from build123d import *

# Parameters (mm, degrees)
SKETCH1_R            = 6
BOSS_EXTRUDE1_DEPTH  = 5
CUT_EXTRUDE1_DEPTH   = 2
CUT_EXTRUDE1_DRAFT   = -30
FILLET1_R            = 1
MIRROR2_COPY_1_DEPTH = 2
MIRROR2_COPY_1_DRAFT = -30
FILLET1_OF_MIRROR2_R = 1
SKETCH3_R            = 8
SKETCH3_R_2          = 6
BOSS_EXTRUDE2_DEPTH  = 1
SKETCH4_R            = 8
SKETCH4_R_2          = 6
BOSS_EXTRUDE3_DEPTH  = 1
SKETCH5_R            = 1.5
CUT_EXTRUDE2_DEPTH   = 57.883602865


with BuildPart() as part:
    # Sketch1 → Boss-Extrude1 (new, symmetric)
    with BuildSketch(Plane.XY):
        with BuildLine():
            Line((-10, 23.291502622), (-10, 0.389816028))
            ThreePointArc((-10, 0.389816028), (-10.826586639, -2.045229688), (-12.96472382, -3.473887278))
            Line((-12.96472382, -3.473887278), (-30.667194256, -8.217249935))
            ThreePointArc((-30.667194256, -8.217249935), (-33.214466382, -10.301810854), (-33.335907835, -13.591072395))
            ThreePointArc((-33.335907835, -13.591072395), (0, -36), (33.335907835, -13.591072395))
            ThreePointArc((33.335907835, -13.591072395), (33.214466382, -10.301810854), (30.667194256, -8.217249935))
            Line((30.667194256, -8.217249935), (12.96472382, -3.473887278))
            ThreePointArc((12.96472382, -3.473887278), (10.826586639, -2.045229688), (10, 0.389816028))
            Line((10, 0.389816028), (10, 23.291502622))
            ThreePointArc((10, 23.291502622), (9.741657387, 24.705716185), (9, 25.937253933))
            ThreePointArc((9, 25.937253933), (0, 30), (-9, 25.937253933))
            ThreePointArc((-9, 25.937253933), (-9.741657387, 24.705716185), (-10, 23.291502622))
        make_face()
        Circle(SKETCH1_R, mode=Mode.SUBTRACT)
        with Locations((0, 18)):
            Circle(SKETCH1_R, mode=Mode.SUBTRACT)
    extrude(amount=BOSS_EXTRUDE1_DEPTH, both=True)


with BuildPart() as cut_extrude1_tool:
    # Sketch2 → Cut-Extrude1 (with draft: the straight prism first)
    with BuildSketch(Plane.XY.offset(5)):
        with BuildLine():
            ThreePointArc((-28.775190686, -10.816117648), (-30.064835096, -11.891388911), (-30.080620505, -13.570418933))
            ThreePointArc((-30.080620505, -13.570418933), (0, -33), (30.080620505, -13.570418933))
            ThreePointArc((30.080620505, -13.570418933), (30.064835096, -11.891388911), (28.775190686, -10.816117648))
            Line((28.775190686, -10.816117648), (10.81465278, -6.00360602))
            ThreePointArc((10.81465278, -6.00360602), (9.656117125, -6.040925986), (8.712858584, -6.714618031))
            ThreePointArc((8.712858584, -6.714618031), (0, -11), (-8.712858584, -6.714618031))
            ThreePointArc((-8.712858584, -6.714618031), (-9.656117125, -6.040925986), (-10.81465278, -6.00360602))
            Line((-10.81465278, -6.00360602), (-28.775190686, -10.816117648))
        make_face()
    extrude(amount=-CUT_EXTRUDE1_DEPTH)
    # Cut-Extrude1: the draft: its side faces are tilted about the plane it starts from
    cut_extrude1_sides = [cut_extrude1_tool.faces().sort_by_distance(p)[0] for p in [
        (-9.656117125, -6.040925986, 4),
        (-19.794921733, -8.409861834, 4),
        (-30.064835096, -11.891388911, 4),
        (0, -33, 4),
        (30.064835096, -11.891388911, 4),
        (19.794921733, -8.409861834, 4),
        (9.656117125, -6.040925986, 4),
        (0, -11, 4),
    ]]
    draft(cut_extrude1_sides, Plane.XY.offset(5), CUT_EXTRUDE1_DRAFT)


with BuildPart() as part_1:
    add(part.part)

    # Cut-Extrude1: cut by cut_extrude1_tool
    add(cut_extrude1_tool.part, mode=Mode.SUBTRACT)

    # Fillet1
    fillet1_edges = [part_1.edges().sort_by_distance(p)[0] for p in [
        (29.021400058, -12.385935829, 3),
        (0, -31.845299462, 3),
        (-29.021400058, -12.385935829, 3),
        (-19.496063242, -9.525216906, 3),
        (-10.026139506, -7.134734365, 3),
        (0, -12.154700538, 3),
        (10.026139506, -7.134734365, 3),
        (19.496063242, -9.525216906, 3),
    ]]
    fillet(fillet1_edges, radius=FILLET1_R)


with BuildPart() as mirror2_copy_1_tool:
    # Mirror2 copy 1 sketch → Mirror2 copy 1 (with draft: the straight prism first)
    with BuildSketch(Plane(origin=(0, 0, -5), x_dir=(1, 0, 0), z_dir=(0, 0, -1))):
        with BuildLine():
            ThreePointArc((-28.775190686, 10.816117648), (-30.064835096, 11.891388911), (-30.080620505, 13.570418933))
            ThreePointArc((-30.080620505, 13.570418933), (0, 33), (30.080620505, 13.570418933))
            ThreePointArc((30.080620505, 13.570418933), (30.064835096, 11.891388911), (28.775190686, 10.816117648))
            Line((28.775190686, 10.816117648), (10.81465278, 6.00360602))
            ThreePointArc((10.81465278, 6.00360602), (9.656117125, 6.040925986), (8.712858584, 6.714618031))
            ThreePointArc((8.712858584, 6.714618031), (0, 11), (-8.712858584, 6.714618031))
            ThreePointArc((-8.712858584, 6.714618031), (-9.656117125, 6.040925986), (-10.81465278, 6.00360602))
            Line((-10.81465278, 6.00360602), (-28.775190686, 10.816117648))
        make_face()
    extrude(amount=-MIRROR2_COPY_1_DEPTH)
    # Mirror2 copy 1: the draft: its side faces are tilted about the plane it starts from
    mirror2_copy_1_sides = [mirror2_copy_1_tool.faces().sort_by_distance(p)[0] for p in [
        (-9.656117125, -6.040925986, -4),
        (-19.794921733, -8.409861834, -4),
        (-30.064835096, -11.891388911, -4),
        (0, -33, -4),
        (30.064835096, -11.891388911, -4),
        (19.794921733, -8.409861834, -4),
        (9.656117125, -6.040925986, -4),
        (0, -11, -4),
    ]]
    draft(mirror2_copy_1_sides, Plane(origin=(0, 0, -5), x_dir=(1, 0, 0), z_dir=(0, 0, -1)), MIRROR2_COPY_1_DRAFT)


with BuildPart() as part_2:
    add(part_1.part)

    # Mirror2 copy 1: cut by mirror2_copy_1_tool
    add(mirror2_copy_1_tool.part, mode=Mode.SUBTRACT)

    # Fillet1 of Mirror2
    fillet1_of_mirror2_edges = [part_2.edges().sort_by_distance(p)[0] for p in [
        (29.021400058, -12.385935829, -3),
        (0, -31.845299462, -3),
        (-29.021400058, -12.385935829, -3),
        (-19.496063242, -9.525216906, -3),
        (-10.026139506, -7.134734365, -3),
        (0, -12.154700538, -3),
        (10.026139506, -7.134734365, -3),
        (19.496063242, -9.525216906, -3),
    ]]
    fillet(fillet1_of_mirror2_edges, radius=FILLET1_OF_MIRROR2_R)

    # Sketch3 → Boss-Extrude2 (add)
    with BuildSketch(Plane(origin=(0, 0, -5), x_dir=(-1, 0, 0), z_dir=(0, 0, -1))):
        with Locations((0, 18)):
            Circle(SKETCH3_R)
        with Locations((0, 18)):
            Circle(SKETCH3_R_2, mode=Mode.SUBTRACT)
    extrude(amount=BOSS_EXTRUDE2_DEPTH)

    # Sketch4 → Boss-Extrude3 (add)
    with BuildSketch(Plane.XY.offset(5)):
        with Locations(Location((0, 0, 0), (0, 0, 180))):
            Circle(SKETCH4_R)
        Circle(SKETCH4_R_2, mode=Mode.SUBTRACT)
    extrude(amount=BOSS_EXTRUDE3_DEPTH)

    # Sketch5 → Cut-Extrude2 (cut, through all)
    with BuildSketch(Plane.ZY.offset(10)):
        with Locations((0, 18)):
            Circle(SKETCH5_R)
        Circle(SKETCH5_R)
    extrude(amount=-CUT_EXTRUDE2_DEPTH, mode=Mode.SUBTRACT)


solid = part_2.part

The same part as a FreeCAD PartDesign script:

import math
import FreeCAD as App
import Part
import Sketcher
Q = App.Units.Quantity


def edges_at(feature, points):
    """Names of the edges that pass closest to the given points."""
    edges = feature.Shape.Edges
    near = lambda p: min(range(len(edges)), key=lambda i: edges[i].distToShape(Part.Vertex(*p))[0])
    return sorted({f"Edge{near(p) + 1}" for p in points})


def faces_at(feature, points):
    """Names of the faces that lie closest to the given points."""
    faces = feature.Shape.Faces
    near = lambda p: min(range(len(faces)), key=lambda i: faces[i].distToShape(Part.Vertex(*p))[0])
    return sorted({f"Face{near(p) + 1}" for p in points})

doc = App.newDocument("Part")
body = doc.addObject("PartDesign::Body", "Body")

# Sketch on XY plane
sketch1 = doc.addObject("Sketcher::SketchObject", "Sketch")
body.addObject(sketch1)
sketch1.AttachmentSupport = (doc.XY_Plane, [""])
sketch1.MapMode = "FlatFace"
sketch1.addGeometry([
    Part.LineSegment(App.Vector(-10, 23.3, 0), App.Vector(-10, 0.4, 0)),  # 0
    Part.ArcOfCircle(Part.Circle(App.Vector(-14, 0.4, 0), App.Vector(0, 0, 1), 4), math.radians(-75), math.radians(0)),  # 1
    Part.LineSegment(App.Vector(-13, -3.5, 0), App.Vector(-30.7, -8.2, 0)),  # 2
    Part.ArcOfCircle(Part.Circle(App.Vector(-29.6, -12.1, 0), App.Vector(0, 0, 1), 4), math.radians(105), math.radians(202)),  # 3
    Part.ArcOfCircle(Part.Circle(App.Vector(0, 0, 0), App.Vector(0, 0, 1), 36), math.radians(-158), math.radians(-22)),  # 4
    Part.ArcOfCircle(Part.Circle(App.Vector(29.6, -12.1, 0), App.Vector(0, 0, 1), 4), math.radians(-22), math.radians(75)),  # 5
    Part.LineSegment(App.Vector(30.7, -8.2, 0), App.Vector(13, -3.5, 0)),  # 6
    Part.ArcOfCircle(Part.Circle(App.Vector(14, 0.4, 0), App.Vector(0, 0, 1), 4), math.radians(-180), math.radians(-105)),  # 7
    Part.LineSegment(App.Vector(10, 0.4, 0), App.Vector(10, 23.3, 0)),  # 8
    Part.ArcOfCircle(Part.Circle(App.Vector(6, 23.3, 0), App.Vector(0, 0, 1), 4), math.radians(0), math.radians(41)),  # 9
    Part.ArcOfCircle(Part.Circle(App.Vector(0, 18, 0), App.Vector(0, 0, 1), 12), math.radians(41), math.radians(139)),  # 10
    Part.ArcOfCircle(Part.Circle(App.Vector(-6, 23.3, 0), App.Vector(0, 0, 1), 4), math.radians(139), math.radians(180)),  # 11
    Part.Circle(App.Vector(0, 0, 0), App.Vector(0, 0, 1), 6),  # 12
    Part.Circle(App.Vector(0, 18, 0), App.Vector(0, 0, 1), 6),  # 13
], False)
sketch1.addConstraint([
    Sketcher.Constraint("Tangent", 0, 2, 1, 2),
    Sketcher.Constraint("Tangent", 1, 1, 2, 1),
    Sketcher.Constraint("Tangent", 2, 2, 3, 1),
    Sketcher.Constraint("Tangent", 3, 2, 4, 1),
    Sketcher.Constraint("Tangent", 4, 2, 5, 1),
    Sketcher.Constraint("Tangent", 5, 2, 6, 1),
    Sketcher.Constraint("Tangent", 6, 2, 7, 2),
    Sketcher.Constraint("Tangent", 7, 1, 8, 1),
    Sketcher.Constraint("Tangent", 8, 2, 9, 1),
    Sketcher.Constraint("Tangent", 9, 2, 10, 1),
    Sketcher.Constraint("Tangent", 10, 2, 11, 1),
    Sketcher.Constraint("Tangent", 11, 2, 0, 1),
    Sketcher.Constraint("Vertical", 0),
    Sketcher.Constraint("Vertical", 8),
    Sketcher.Constraint("Coincident", 4, 3, -1, 1),
    Sketcher.Constraint("Coincident", 12, 3, -1, 1),
    Sketcher.Constraint("Coincident", 13, 3, 10, 3),
    Sketcher.Constraint("Equal", 1, 3),
    Sketcher.Constraint("Equal", 3, 5),
    Sketcher.Constraint("Equal", 5, 7),
    Sketcher.Constraint("Equal", 7, 9),
    Sketcher.Constraint("Equal", 9, 11),
    Sketcher.Constraint("Equal", 12, 13),
    Sketcher.Constraint("Symmetric", 1, 3, 7, 3, -2),
    Sketcher.Constraint("PointOnObject", 10, 3, -2),
    Sketcher.Constraint("Horizontal", 3, 3, 5, 3),
    Sketcher.Constraint("Diameter", 12, Q("12 mm")),
    Sketcher.Constraint("Radius", 1, Q("4 mm")),
    Sketcher.Constraint("Radius", 4, Q("36 mm")),
    Sketcher.Constraint("Radius", 10, Q("12 mm")),
    Sketcher.Constraint("Angle", 2, Q("-165 deg")),
    Sketcher.Constraint("DistanceX", 1, 3, -1, 1, Q("14 mm")),
    Sketcher.Constraint("DistanceY", -1, 1, 10, 3, Q("18 mm")),
    Sketcher.Constraint("DistanceY", 0, 2, 0, 1, Q("22.901687 mm")),
])
pad1 = doc.addObject("PartDesign::Pad", "Pad")
body.addObject(pad1)
pad1.Profile = sketch1
pad1.Length = 10
pad1.Midplane = True
body2 = doc.addObject("PartDesign::Body", "Body001")

# Sketch on XY plane
sketch2 = doc.addObject("Sketcher::SketchObject", "Sketch001")
body2.addObject(sketch2)
sketch2.AttachmentSupport = (doc.getObject("XY_Plane001"), [""])
sketch2.MapMode = "FlatFace"
sketch2.AttachmentOffset = App.Placement(App.Vector(0, 0, 5), App.Rotation())
sketch2.addGeometry([
    Part.ArcOfCircle(Part.Circle(App.Vector(-28.3, -12.7, 0), App.Vector(0, 0, 1), 2), math.radians(105), math.radians(204)),  # 0
    Part.ArcOfCircle(Part.Circle(App.Vector(0, 0, 0), App.Vector(0, 0, 1), 33), math.radians(-156), math.radians(-24)),  # 1
    Part.ArcOfCircle(Part.Circle(App.Vector(28.3, -12.7, 0), App.Vector(0, 0, 1), 2), math.radians(-24), math.radians(75)),  # 2
    Part.LineSegment(App.Vector(28.8, -10.8, 0), App.Vector(10.8, -6, 0)),  # 3
    Part.ArcOfCircle(Part.Circle(App.Vector(10.3, -7.9, 0), App.Vector(0, 0, 1), 2), math.radians(75), math.radians(142)),  # 4
    Part.ArcOfCircle(Part.Circle(App.Vector(0, 0, 0), App.Vector(0, 0, 1), 11), math.radians(-142), math.radians(-38)),  # 5
    Part.ArcOfCircle(Part.Circle(App.Vector(-10.3, -7.9, 0), App.Vector(0, 0, 1), 2), math.radians(38), math.radians(105)),  # 6
    Part.LineSegment(App.Vector(-10.8, -6, 0), App.Vector(-28.8, -10.8, 0)),  # 7
], False)
sketch2.addConstraint([
    Sketcher.Constraint("Tangent", 0, 2, 1, 1),
    Sketcher.Constraint("Tangent", 1, 2, 2, 1),
    Sketcher.Constraint("Tangent", 2, 2, 3, 1),
    Sketcher.Constraint("Tangent", 3, 2, 4, 1),
    Sketcher.Constraint("Tangent", 4, 2, 5, 2),
    Sketcher.Constraint("Tangent", 5, 1, 6, 1),
    Sketcher.Constraint("Tangent", 6, 2, 7, 1),
    Sketcher.Constraint("Tangent", 7, 2, 0, 1),
    Sketcher.Constraint("Coincident", 1, 3, -1, 1),
    Sketcher.Constraint("Coincident", 5, 3, -1, 1),
    Sketcher.Constraint("Equal", 0, 2),
    Sketcher.Constraint("Equal", 2, 4),
    Sketcher.Constraint("Equal", 4, 6),
    Sketcher.Constraint("Symmetric", 3, 2, 6, 2, -2),
    Sketcher.Constraint("Radius", 0, Q("2 mm")),
    Sketcher.Constraint("Radius", 1, Q("33 mm")),
    Sketcher.Constraint("Radius", 5, Q("11 mm")),
    Sketcher.Constraint("Angle", 3, Q("165 deg")),
    Sketcher.Constraint("DistanceX", 3, 2, 2, 3, Q("17.4429 mm")),
])
pad2 = doc.addObject("PartDesign::Pad", "Pad001")
body2.addObject(pad2)
pad2.Profile = sketch2
pad2.Length = 2
pad2.Reversed = True
doc.recompute()

datumplane = doc.addObject("PartDesign::Plane", "DatumPlane")
body2.addObject(datumplane)
datumplane.AttachmentSupport = (doc.getObject("XY_Plane001"), [""])
datumplane.MapMode = "FlatFace"
datumplane.AttachmentOffset = App.Placement(App.Vector(0, 0, 5), App.Rotation())
draft = doc.addObject("PartDesign::Draft", "Draft")
body2.addObject(draft)
draft.Base = (pad2, faces_at(pad2, [
    (-9.656, -6.041, 4),
    (-19.795, -8.41, 4),
    (-30.065, -11.891, 4),
    (0, -33, 4),
    (30.065, -11.891, 4),
    (19.795, -8.41, 4),
    (9.656, -6.041, 4),
    (0, -11, 4),
]))
draft.NeutralPlane = (datumplane, [""])
draft.Angle = 30
draft.Reversed = True
doc.recompute()

boolean = doc.addObject("PartDesign::Boolean", "Boolean")
body.addObject(boolean)
boolean.Type = "Cut"
boolean.addObjects([body2])
doc.recompute()

fillet = doc.addObject("PartDesign::Fillet", "Fillet")
body.addObject(fillet)
fillet.Base = (boolean, edges_at(boolean, [
    (29.021, -12.386, 3),
    (0, -31.845, 3),
    (-29.021, -12.386, 3),
    (-19.496, -9.525, 3),
    (-10.026, -7.135, 3),
    (0, -12.155, 3),
    (10.026, -7.135, 3),
    (19.496, -9.525, 3),
]))
fillet.Radius = 1
body3 = doc.addObject("PartDesign::Body", "Body002")

# Sketch on XY plane
sketch3 = doc.addObject("Sketcher::SketchObject", "Sketch002")
body3.addObject(sketch3)
sketch3.AttachmentSupport = (doc.getObject("XY_Plane002"), [""])
sketch3.MapMode = "FlatFace"
sketch3.AttachmentOffset = App.Placement(App.Vector(0, 0, -5), App.Rotation())
sketch3.addGeometry([
    Part.ArcOfCircle(Part.Circle(App.Vector(-28.3, -12.7, 0), App.Vector(0, 0, 1), 2), math.radians(105), math.radians(204)),  # 0
    Part.LineSegment(App.Vector(-28.8, -10.8, 0), App.Vector(-10.8, -6, 0)),  # 1
    Part.ArcOfCircle(Part.Circle(App.Vector(-10.3, -7.9, 0), App.Vector(0, 0, 1), 2), math.radians(38), math.radians(105)),  # 2
    Part.ArcOfCircle(Part.Circle(App.Vector(0, 0, 0), App.Vector(0, 0, 1), 11), math.radians(-142), math.radians(-38)),  # 3
    Part.ArcOfCircle(Part.Circle(App.Vector(10.3, -7.9, 0), App.Vector(0, 0, 1), 2), math.radians(75), math.radians(142)),  # 4
    Part.LineSegment(App.Vector(10.8, -6, 0), App.Vector(28.8, -10.8, 0)),  # 5
    Part.ArcOfCircle(Part.Circle(App.Vector(28.3, -12.7, 0), App.Vector(0, 0, 1), 2), math.radians(-24), math.radians(75)),  # 6
    Part.ArcOfCircle(Part.Circle(App.Vector(0, 0, 0), App.Vector(0, 0, 1), 33), math.radians(-156), math.radians(-24)),  # 7
], False)
sketch3.addConstraint([
    Sketcher.Constraint("Tangent", 0, 1, 1, 1),
    Sketcher.Constraint("Tangent", 1, 2, 2, 2),
    Sketcher.Constraint("Tangent", 2, 1, 3, 1),
    Sketcher.Constraint("Tangent", 3, 2, 4, 2),
    Sketcher.Constraint("Tangent", 4, 1, 5, 1),
    Sketcher.Constraint("Tangent", 5, 2, 6, 2),
    Sketcher.Constraint("Tangent", 6, 1, 7, 2),
    Sketcher.Constraint("Tangent", 7, 1, 0, 2),
    Sketcher.Constraint("Coincident", 3, 3, -1, 1),
    Sketcher.Constraint("Coincident", 7, 3, -1, 1),
    Sketcher.Constraint("Equal", 0, 2),
    Sketcher.Constraint("Equal", 2, 4),
    Sketcher.Constraint("Equal", 4, 6),
    Sketcher.Constraint("Symmetric", 1, 2, 4, 1, -2),
    Sketcher.Constraint("Radius", 0, Q("2 mm")),
    Sketcher.Constraint("Radius", 3, Q("11 mm")),
    Sketcher.Constraint("Radius", 7, Q("33 mm")),
    Sketcher.Constraint("Angle", 1, Q("15 deg")),
    Sketcher.Constraint("DistanceX", 0, 3, 1, 2, Q("17.4429 mm")),
])
pad3 = doc.addObject("PartDesign::Pad", "Pad002")
body3.addObject(pad3)
pad3.Profile = sketch3
pad3.Length = 2
doc.recompute()

datumplane2 = doc.addObject("PartDesign::Plane", "DatumPlane001")
body3.addObject(datumplane2)
datumplane2.AttachmentSupport = (doc.getObject("XY_Plane002"), [""])
datumplane2.MapMode = "FlatFace"
datumplane2.AttachmentOffset = App.Placement(App.Vector(0, 0, -5), App.Rotation())
draft2 = doc.addObject("PartDesign::Draft", "Draft001")
body3.addObject(draft2)
draft2.Base = (pad3, faces_at(pad3, [
    (-9.656, -6.041, -4),
    (-19.795, -8.41, -4),
    (-30.065, -11.891, -4),
    (0, -33, -4),
    (30.065, -11.891, -4),
    (19.795, -8.41, -4),
    (9.656, -6.041, -4),
    (0, -11, -4),
]))
draft2.NeutralPlane = (datumplane2, [""])
draft2.Angle = 30
draft2.Reversed = False
doc.recompute()

boolean2 = doc.addObject("PartDesign::Boolean", "Boolean001")
body.addObject(boolean2)
boolean2.Type = "Cut"
boolean2.addObjects([body3])
doc.recompute()

fillet2 = doc.addObject("PartDesign::Fillet", "Fillet001")
body.addObject(fillet2)
fillet2.Base = (boolean2, edges_at(boolean2, [
    (29.021, -12.386, -3),
    (0, -31.845, -3),
    (-29.021, -12.386, -3),
    (-19.496, -9.525, -3),
    (-10.026, -7.135, -3),
    (0, -12.155, -3),
    (10.026, -7.135, -3),
    (19.496, -9.525, -3),
]))
fillet2.Radius = 1

# Sketch on XY plane
sketch4 = doc.addObject("Sketcher::SketchObject", "Sketch003")
body.addObject(sketch4)
sketch4.AttachmentSupport = (doc.XY_Plane, [""])
sketch4.MapMode = "FlatFace"
sketch4.AttachmentOffset = App.Placement(App.Vector(0, 0, -5), App.Rotation())
sketch4.addGeometry([
    Part.Circle(App.Vector(0, 18, 0), App.Vector(0, 0, 1), 8),
    Part.Circle(App.Vector(0, 18, 0), App.Vector(0, 0, 1), 6),
], False)
sketch4.addConstraint([
    Sketcher.Constraint("Coincident", 1, 3, 0, 3),
    Sketcher.Constraint("PointOnObject", 0, 3, -2),
    Sketcher.Constraint("Diameter", 0, Q("16 mm")),
    Sketcher.Constraint("Diameter", 1, Q("12 mm")),
    Sketcher.Constraint("DistanceY", -1, 1, 0, 3, Q("18 mm")),
])
pad4 = doc.addObject("PartDesign::Pad", "Pad003")
body.addObject(pad4)
pad4.Profile = sketch4
pad4.Length = 1
pad4.Reversed = True

# Sketch on XY plane
sketch5 = doc.addObject("Sketcher::SketchObject", "Sketch004")
body.addObject(sketch5)
sketch5.AttachmentSupport = (doc.XY_Plane, [""])
sketch5.MapMode = "FlatFace"
sketch5.AttachmentOffset = App.Placement(App.Vector(0, 0, 5), App.Rotation())
sketch5.addGeometry([
    Part.Circle(App.Vector(0, 0, 0), App.Vector(0, 0, 1), 8),
    Part.Circle(App.Vector(0, 0, 0), App.Vector(0, 0, 1), 6),
], False)
sketch5.addConstraint([
    Sketcher.Constraint("Coincident", 0, 3, -1, 1),
    Sketcher.Constraint("Coincident", 1, 3, -1, 1),
    Sketcher.Constraint("Diameter", 0, Q("16 mm")),
    Sketcher.Constraint("Diameter", 1, Q("12 mm")),
])
pad5 = doc.addObject("PartDesign::Pad", "Pad004")
body.addObject(pad5)
pad5.Profile = sketch5
pad5.Length = 1

# Sketch on YZ plane
sketch6 = doc.addObject("Sketcher::SketchObject", "Sketch005")
body.addObject(sketch6)
sketch6.AttachmentSupport = (doc.YZ_Plane, [""])
sketch6.MapMode = "FlatFace"
sketch6.AttachmentOffset = App.Placement(App.Vector(0, 0, -10), App.Rotation())
sketch6.addGeometry([
    Part.Circle(App.Vector(18, 0, 0), App.Vector(0, 0, 1), 1.5),
    Part.Circle(App.Vector(0, 0, 0), App.Vector(0, 0, 1), 1.5),
], False)
sketch6.addConstraint([
    Sketcher.Constraint("Coincident", 1, 3, -1, 1),
    Sketcher.Constraint("Equal", 0, 1),
    Sketcher.Constraint("PointOnObject", 0, 3, -1),
    Sketcher.Constraint("Diameter", 0, Q("3 mm")),
    Sketcher.Constraint("DistanceX", -1, 1, 0, 3, Q("18 mm")),
])
pocket1 = doc.addObject("PartDesign::Pocket", "Pocket")
body.addObject(pocket1)
pocket1.Profile = sketch6
pocket1.Type = "ThroughAll"
pocket1.Reversed = True

doc.recompute()
